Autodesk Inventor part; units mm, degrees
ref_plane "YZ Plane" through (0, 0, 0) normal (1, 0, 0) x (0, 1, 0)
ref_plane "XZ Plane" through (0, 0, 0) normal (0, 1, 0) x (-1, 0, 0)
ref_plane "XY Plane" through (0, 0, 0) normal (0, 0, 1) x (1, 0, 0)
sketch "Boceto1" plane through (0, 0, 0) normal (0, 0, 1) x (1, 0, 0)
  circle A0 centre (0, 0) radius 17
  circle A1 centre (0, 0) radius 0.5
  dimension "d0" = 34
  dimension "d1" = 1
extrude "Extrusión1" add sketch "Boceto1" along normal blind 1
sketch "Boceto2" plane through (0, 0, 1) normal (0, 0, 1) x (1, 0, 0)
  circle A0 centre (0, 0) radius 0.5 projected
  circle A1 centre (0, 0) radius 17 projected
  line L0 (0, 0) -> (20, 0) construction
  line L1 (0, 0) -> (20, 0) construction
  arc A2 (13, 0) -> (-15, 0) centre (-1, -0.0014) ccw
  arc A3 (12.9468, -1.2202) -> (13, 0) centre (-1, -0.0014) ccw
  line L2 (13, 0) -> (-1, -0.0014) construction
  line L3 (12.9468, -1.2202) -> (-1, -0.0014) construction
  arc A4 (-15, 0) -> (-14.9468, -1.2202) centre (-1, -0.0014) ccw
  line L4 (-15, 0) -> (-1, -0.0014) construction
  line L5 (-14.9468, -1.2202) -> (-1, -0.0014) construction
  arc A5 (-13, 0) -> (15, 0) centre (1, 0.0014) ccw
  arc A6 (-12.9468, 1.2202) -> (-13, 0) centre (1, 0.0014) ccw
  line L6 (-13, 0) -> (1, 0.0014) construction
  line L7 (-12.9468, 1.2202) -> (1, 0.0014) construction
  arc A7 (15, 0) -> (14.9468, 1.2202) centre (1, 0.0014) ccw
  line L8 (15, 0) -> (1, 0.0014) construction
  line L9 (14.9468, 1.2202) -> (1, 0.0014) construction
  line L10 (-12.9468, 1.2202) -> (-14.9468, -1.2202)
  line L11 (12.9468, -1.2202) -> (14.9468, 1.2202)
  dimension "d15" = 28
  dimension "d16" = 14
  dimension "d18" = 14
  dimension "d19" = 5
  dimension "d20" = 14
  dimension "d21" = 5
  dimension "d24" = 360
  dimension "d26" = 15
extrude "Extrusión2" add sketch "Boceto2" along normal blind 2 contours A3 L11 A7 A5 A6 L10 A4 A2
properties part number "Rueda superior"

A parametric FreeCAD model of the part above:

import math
import FreeCAD as App
import Part
import Sketcher
from FreeCAD import Vector

doc = App.newDocument("Part")
body = doc.addObject("PartDesign::Body", "Body")

# Sketch on XY plane
sketch1 = doc.addObject("Sketcher::SketchObject", "Sketch")
body.addObject(sketch1)
sketch1.AttachmentSupport = (doc.XY_Plane, [""])
sketch1.MapMode = "FlatFace"
sketch1.addGeometry([
    Part.Circle(Vector(0, 0, 0), Vector(0, 0, 1), 17),
    Part.Circle(Vector(0, 0, 0), Vector(0, 0, 1), 0.5),
], False)
sketch1.addConstraint([
    Sketcher.Constraint("Coincident", 0, 3, -1, 1),
    Sketcher.Constraint("Coincident", 1, 3, -1, 1),
    Sketcher.Constraint("Diameter", 0, 34.0),
    Sketcher.Constraint("Diameter", 1, 1.0),
])
pad1 = doc.addObject("PartDesign::Pad", "Pad")
body.addObject(pad1)
pad1.Profile = sketch1
pad1.Length = 1

# Sketch on XY plane
sketch2 = doc.addObject("Sketcher::SketchObject", "Sketch001")
body.addObject(sketch2)
sketch2.AttachmentSupport = (doc.XY_Plane, [""])
sketch2.MapMode = "FlatFace"
sketch2.AttachmentOffset = App.Placement(Vector(0, 0, 1), App.Rotation())
sketch2.addGeometry([
    Part.ArcOfCircle(Part.Circle(Vector(-1.024354, 0.000194, 0), Vector(0, 0, 1), 14.024354), math.radians(-4.99217), math.radians(-0.000792)),  # 0
    Part.ArcOfCircle(Part.Circle(Vector(-1, -0.0014, 0), Vector(0, 0, 1), 14), math.radians(0.00573), math.radians(179.99427)),  # 1
    Part.ArcOfCircle(Part.Circle(Vector(-1.024315, -0.001928, 0), Vector(0, 0, 1), 13.975685), math.radians(179.992095), math.radians(185.000867)),  # 2
    Part.LineSegment(Vector(-14.9468, -1.2202, 0), Vector(-12.9468, 1.2202, 0)),  # 3
    Part.ArcOfCircle(Part.Circle(Vector(1.024354, -0.000194, 0), Vector(0, 0, 1), 14.024354), math.radians(175.00783), math.radians(179.999208)),  # 4
    Part.ArcOfCircle(Part.Circle(Vector(1, 0.0014, 0), Vector(0, 0, 1), 14), math.radians(-179.99427), math.radians(-0.00573)),  # 5
    Part.ArcOfCircle(Part.Circle(Vector(1.024315, 0.001928, 0), Vector(0, 0, 1), 13.975685), math.radians(-0.007905), math.radians(5.000867)),  # 6
    Part.LineSegment(Vector(14.9468, 1.2202, 0), Vector(12.9468, -1.2202, 0)),  # 7
    Part.Circle(Vector(0, 0, 0), Vector(0, 0, 1), 0.5),  # 8
], False)
sketch2.addConstraint([
    Sketcher.Constraint("Tangent", 0, 2, 1, 1),
    Sketcher.Constraint("Tangent", 1, 2, 2, 1),
    Sketcher.Constraint("Coincident", 2, 2, 3, 1),
    Sketcher.Constraint("Coincident", 3, 2, 4, 1),
    Sketcher.Constraint("Tangent", 4, 2, 5, 1),
    Sketcher.Constraint("Tangent", 5, 2, 6, 1),
    Sketcher.Constraint("Coincident", 6, 2, 7, 1),
    Sketcher.Constraint("Coincident", 7, 2, 0, 1),
    Sketcher.Constraint("Coincident", 8, 3, -1, 1),
    Sketcher.Constraint("Equal", 0, 4),
    Sketcher.Constraint("Equal", 1, 5),
    Sketcher.Constraint("Equal", 2, 6),
    Sketcher.Constraint("Symmetric", 0, 3, 4, 3, -1, 1),
    Sketcher.Constraint("Symmetric", 2, 2, 6, 2, -1, 1),
    Sketcher.Constraint("PointOnObject", 0, 3, -1),
    Sketcher.Constraint("PointOnObject", 0, 2, -1),
    Sketcher.Constraint("PointOnObject", 1, 2, -1),
    Sketcher.Constraint("PointOnObject", 4, 2, -1),
    Sketcher.Constraint("Parallel", 3, 7),
    Sketcher.Constraint("Horizontal", 3, 2, 6, 2),
    Sketcher.Constraint("Vertical", 0, 3, 2, 3),
    Sketcher.Constraint("Radius", 1, 14.0),
    Sketcher.Constraint("Diameter", 8, 1.0),
    Sketcher.Constraint("DistanceX", 1, 2, -1, 1, 15.0),
    Sketcher.Constraint("Radius", 0, 14.0244),
    Sketcher.Constraint("DistanceY", 0, 3, 3, 2, 1.22),
])
pad2 = doc.addObject("PartDesign::Pad", "Pad001")
body.addObject(pad2)
pad2.Profile = sketch2
pad2.Length = 2

doc.recompute()
